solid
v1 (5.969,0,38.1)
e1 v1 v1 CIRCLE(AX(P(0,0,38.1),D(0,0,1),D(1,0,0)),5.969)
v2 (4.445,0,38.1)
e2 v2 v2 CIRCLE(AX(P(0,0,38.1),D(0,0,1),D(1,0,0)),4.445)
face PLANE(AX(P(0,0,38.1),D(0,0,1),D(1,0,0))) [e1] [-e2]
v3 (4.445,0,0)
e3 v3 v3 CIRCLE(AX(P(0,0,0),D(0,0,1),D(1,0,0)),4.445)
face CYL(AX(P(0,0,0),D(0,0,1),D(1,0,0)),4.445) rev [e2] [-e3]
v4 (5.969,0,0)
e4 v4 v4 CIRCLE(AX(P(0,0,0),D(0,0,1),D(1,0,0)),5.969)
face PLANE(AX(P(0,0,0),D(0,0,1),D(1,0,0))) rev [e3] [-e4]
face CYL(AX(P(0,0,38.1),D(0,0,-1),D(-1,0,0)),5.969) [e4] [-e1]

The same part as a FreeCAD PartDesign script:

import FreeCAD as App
import Part
import Sketcher
Q = App.Units.Quantity

doc = App.newDocument("Part")
body = doc.addObject("PartDesign::Body", "Body")

# Sketch on XY plane
sketch1 = body.newObject("Sketcher::SketchObject", "Sketch")
sketch1.AttachmentSupport = (doc.getObject("XY_Plane"), [""])
sketch1.MapMode = "FlatFace"
sketch1.addGeometry(Part.Circle(App.Vector(0, 0, 0), App.Vector(0, 0, 1), 5.969), False)
sketch1.addConstraint(Sketcher.Constraint("Coincident", 0, 3, -1, 1))
sketch1.addConstraint(Sketcher.Constraint("Diameter", 0, Q("0.47 in")))
pad1 = body.newObject("PartDesign::Pad", "Pad")
pad1.Profile = sketch1
pad1.Length = Q("1.5 in")

# Sketch on XY plane
sketch2 = body.newObject("Sketcher::SketchObject", "Sketch001")
sketch2.AttachmentSupport = (doc.getObject("XY_Plane"), [""])
sketch2.MapMode = "FlatFace"
sketch2.AttachmentOffset = App.Placement(App.Vector(0, 0, 1.5 * 25.4), App.Rotation())
sketch2.addGeometry(Part.Circle(App.Vector(0, 0, 0), App.Vector(0, 0, 1), 4.445), False)
sketch2.addConstraint(Sketcher.Constraint("Coincident", 0, 3, -1, 1))
sketch2.addConstraint(Sketcher.Constraint("Diameter", 0, Q("0.35 in")))
pocket1 = body.newObject("PartDesign::Pocket", "Pocket")
pocket1.Profile = sketch2
pocket1.Length = Q("1.5 in")

doc.recompute()
